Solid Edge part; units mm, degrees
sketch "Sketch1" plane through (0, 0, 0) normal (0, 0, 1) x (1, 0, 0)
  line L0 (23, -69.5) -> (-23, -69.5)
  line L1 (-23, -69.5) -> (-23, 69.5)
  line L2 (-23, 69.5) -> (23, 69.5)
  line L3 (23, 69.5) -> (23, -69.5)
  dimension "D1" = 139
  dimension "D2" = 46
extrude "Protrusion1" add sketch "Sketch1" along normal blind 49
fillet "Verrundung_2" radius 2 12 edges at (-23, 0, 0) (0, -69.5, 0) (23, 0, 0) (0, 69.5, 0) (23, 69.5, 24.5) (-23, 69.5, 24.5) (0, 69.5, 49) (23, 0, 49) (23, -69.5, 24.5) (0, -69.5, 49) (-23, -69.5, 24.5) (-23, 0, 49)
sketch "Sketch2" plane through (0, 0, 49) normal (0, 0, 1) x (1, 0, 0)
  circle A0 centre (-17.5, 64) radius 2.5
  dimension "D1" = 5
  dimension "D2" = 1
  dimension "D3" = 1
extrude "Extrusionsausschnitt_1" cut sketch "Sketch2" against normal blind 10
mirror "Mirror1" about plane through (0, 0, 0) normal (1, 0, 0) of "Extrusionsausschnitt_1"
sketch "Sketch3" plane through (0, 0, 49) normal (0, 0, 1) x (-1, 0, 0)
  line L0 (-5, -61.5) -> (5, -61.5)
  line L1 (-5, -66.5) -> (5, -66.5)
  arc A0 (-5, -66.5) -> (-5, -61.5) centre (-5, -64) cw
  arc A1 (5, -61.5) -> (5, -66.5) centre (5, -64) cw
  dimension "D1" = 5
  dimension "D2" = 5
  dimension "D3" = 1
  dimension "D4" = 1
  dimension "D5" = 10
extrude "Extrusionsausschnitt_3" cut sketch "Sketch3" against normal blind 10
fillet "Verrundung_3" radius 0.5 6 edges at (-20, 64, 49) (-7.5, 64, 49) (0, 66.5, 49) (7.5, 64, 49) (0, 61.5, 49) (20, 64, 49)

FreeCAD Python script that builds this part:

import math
import FreeCAD as App
import Part
import Sketcher
from FreeCAD import Vector
Q = App.Units.Quantity


def edges_at(feature, points):
    """Names of the edges that pass closest to the given points."""
    edges = feature.Shape.Edges
    near = lambda p: min(range(len(edges)), key=lambda i: edges[i].distToShape(Part.Vertex(*p))[0])
    return sorted({f"Edge{near(p) + 1}" for p in points})


def add_polygon(sketch, points):
    """Adds a closed chain of lines whose ends are joined by coincident constraints."""
    first, n = sketch.GeometryCount, len(points)
    for a, b in zip(points, points[1:] + points[:1]):
        sketch.addGeometry(Part.LineSegment(App.Vector(*a, 0), App.Vector(*b, 0)), False)
    for i in range(n):
        sketch.addConstraint(Sketcher.Constraint("Coincident", first + i, 2, first + (i + 1) % n, 1))

doc = App.newDocument("Part")
params = doc.addObject("Spreadsheet::Sheet", "Params")
for row, (alias, value) in enumerate([
    ("sketch1_height", "139 mm"),
    ("pad1_length", "49 mm"),
    ("fillet_radius", "2 mm"),
    ("sketch2_diameter", "5 mm"),
    ("pocket1_length", "10 mm"),
    ("sketch3_radius", "2.5 mm"),
    ("pocket2_length", "10 mm"),
    ("fillet2_radius", "0.5 mm"),
], start=1):
    params.set(f"A{row}", alias)
    params.set(f"B{row}", "=" + value)
    params.setAlias(f"B{row}", alias)

body = doc.addObject("PartDesign::Body", "Body")

sketch1 = body.newObject("Sketcher::SketchObject", "Sketch")
sketch1.AttachmentSupport = (doc.getObject("XY_Plane"), [""])
sketch1.MapMode = "FlatFace"
add_polygon(sketch1, [(-23, -70), (23, -70), (23, 70), (-23, 70)])
sketch1.addConstraint(Sketcher.Constraint("Horizontal", 0))
sketch1.addConstraint(Sketcher.Constraint("Vertical", 1))
sketch1.addConstraint(Sketcher.Constraint("Horizontal", 2))
sketch1.addConstraint(Sketcher.Constraint("Vertical", 3))
sketch1.addConstraint(Sketcher.Constraint("Symmetric", 0, 2, 2, 2, -1, 1))
sketch1.addConstraint(Sketcher.Constraint("DistanceX", -1, 1, 0, 2, Q("23 mm")))
sketch1.addConstraint(Sketcher.Constraint("DistanceY", 1, 1, 1, 2, Q("139 mm")))
sketch1.setExpression("Constraints[10]", "Params.sketch1_height")
pad1 = body.newObject("PartDesign::Pad", "Pad")
pad1.Profile = sketch1
pad1.setExpression("Length", "Params.pad1_length")
doc.recompute()

fillet = body.newObject("PartDesign::Fillet", "Fillet")
fillet.Base = (pad1, ["Edge1"])
fillet.UseAllEdges = True
fillet.setExpression("Radius", "Params.fillet_radius")

sketch2 = body.newObject("Sketcher::SketchObject", "Sketch001")
sketch2.AttachmentSupport = (doc.getObject("XY_Plane"), [""])
sketch2.MapMode = "FlatFace"
sketch2.AttachmentOffset = App.Placement(Vector(0, 0, 49), App.Rotation())
sketch2.addGeometry(Part.Circle(Vector(-17.5, 64, 0), Vector(0, 0, 1), 2.5), False)
sketch2.addConstraint(Sketcher.Constraint("Diameter", 0, Q("5 mm")))
sketch2.addConstraint(Sketcher.Constraint("DistanceY", -1, 1, 0, 3, Q("64 mm")))
sketch2.addConstraint(Sketcher.Constraint("DistanceX", 0, 3, -1, 1, Q("17.5 mm")))
sketch2.setExpression("Constraints[0]", "Params.sketch2_diameter")
pocket1 = body.newObject("PartDesign::Pocket", "Pocket")
pocket1.Profile = sketch2
pocket1.setExpression("Length", "Params.pocket1_length")
doc.recompute()

mirrored = body.newObject("PartDesign::Mirrored", "Mirrored")
mirrored.Originals = [pocket1]
mirrored.MirrorPlane = (doc.getObject("YZ_Plane"), [""])
body.Tip = mirrored

sketch3 = body.newObject("Sketcher::SketchObject", "Sketch002")
sketch3.AttachmentSupport = (doc.getObject("XY_Plane"), [""])
sketch3.MapMode = "FlatFace"
sketch3.AttachmentOffset = App.Placement(Vector(0, 0, 49), App.Rotation())
sketch3.addGeometry(Part.LineSegment(Vector(-5, 61.5, 0), Vector(5, 61.5, 0)), False)
sketch3.addGeometry(Part.ArcOfCircle(Part.Circle(Vector(5, 64, 0), Vector(0, 0, 1), 2.5), math.radians(-90), math.radians(90)), False)
sketch3.addGeometry(Part.LineSegment(Vector(5, 66.5, 0), Vector(-5, 66.5, 0)), False)
sketch3.addGeometry(Part.ArcOfCircle(Part.Circle(Vector(-5, 64, 0), Vector(0, 0, 1), 2.5), math.radians(90), math.radians(270)), False)
sketch3.addConstraint(Sketcher.Constraint("Tangent", 0, 2, 1, 1))
sketch3.addConstraint(Sketcher.Constraint("Tangent", 1, 2, 2, 1))
sketch3.addConstraint(Sketcher.Constraint("Tangent", 2, 2, 3, 1))
sketch3.addConstraint(Sketcher.Constraint("Tangent", 3, 2, 0, 1))
sketch3.addConstraint(Sketcher.Constraint("Horizontal", 0))
sketch3.addConstraint(Sketcher.Constraint("Horizontal", 2))
sketch3.addConstraint(Sketcher.Constraint("Radius", 1, Q("2.5 mm")))
sketch3.addConstraint(Sketcher.Constraint("DistanceX", -1, 1, 1, 3, Q("5 mm")))
sketch3.addConstraint(Sketcher.Constraint("DistanceX", 3, 3, -1, 1, Q("5 mm")))
sketch3.addConstraint(Sketcher.Constraint("DistanceY", -1, 1, 1, 3, Q("64 mm")))
sketch3.setExpression("Constraints[6]", "Params.sketch3_radius")
pocket2 = body.newObject("PartDesign::Pocket", "Pocket001")
pocket2.Profile = sketch3
pocket2.setExpression("Length", "Params.pocket2_length")
doc.recompute()

fillet2 = body.newObject("PartDesign::Fillet", "Fillet001")
fillet2.Base = (pocket2, edges_at(pocket2, [
    (-20, 64, 49),
    (-7.5, 64, 49),
    (0, 66.5, 49),
    (7.5, 64, 49),
    (0, 61.5, 49),
    (20, 64, 49),
]))
fillet2.setExpression("Radius", "Params.fillet2_radius")

doc.recompute()
